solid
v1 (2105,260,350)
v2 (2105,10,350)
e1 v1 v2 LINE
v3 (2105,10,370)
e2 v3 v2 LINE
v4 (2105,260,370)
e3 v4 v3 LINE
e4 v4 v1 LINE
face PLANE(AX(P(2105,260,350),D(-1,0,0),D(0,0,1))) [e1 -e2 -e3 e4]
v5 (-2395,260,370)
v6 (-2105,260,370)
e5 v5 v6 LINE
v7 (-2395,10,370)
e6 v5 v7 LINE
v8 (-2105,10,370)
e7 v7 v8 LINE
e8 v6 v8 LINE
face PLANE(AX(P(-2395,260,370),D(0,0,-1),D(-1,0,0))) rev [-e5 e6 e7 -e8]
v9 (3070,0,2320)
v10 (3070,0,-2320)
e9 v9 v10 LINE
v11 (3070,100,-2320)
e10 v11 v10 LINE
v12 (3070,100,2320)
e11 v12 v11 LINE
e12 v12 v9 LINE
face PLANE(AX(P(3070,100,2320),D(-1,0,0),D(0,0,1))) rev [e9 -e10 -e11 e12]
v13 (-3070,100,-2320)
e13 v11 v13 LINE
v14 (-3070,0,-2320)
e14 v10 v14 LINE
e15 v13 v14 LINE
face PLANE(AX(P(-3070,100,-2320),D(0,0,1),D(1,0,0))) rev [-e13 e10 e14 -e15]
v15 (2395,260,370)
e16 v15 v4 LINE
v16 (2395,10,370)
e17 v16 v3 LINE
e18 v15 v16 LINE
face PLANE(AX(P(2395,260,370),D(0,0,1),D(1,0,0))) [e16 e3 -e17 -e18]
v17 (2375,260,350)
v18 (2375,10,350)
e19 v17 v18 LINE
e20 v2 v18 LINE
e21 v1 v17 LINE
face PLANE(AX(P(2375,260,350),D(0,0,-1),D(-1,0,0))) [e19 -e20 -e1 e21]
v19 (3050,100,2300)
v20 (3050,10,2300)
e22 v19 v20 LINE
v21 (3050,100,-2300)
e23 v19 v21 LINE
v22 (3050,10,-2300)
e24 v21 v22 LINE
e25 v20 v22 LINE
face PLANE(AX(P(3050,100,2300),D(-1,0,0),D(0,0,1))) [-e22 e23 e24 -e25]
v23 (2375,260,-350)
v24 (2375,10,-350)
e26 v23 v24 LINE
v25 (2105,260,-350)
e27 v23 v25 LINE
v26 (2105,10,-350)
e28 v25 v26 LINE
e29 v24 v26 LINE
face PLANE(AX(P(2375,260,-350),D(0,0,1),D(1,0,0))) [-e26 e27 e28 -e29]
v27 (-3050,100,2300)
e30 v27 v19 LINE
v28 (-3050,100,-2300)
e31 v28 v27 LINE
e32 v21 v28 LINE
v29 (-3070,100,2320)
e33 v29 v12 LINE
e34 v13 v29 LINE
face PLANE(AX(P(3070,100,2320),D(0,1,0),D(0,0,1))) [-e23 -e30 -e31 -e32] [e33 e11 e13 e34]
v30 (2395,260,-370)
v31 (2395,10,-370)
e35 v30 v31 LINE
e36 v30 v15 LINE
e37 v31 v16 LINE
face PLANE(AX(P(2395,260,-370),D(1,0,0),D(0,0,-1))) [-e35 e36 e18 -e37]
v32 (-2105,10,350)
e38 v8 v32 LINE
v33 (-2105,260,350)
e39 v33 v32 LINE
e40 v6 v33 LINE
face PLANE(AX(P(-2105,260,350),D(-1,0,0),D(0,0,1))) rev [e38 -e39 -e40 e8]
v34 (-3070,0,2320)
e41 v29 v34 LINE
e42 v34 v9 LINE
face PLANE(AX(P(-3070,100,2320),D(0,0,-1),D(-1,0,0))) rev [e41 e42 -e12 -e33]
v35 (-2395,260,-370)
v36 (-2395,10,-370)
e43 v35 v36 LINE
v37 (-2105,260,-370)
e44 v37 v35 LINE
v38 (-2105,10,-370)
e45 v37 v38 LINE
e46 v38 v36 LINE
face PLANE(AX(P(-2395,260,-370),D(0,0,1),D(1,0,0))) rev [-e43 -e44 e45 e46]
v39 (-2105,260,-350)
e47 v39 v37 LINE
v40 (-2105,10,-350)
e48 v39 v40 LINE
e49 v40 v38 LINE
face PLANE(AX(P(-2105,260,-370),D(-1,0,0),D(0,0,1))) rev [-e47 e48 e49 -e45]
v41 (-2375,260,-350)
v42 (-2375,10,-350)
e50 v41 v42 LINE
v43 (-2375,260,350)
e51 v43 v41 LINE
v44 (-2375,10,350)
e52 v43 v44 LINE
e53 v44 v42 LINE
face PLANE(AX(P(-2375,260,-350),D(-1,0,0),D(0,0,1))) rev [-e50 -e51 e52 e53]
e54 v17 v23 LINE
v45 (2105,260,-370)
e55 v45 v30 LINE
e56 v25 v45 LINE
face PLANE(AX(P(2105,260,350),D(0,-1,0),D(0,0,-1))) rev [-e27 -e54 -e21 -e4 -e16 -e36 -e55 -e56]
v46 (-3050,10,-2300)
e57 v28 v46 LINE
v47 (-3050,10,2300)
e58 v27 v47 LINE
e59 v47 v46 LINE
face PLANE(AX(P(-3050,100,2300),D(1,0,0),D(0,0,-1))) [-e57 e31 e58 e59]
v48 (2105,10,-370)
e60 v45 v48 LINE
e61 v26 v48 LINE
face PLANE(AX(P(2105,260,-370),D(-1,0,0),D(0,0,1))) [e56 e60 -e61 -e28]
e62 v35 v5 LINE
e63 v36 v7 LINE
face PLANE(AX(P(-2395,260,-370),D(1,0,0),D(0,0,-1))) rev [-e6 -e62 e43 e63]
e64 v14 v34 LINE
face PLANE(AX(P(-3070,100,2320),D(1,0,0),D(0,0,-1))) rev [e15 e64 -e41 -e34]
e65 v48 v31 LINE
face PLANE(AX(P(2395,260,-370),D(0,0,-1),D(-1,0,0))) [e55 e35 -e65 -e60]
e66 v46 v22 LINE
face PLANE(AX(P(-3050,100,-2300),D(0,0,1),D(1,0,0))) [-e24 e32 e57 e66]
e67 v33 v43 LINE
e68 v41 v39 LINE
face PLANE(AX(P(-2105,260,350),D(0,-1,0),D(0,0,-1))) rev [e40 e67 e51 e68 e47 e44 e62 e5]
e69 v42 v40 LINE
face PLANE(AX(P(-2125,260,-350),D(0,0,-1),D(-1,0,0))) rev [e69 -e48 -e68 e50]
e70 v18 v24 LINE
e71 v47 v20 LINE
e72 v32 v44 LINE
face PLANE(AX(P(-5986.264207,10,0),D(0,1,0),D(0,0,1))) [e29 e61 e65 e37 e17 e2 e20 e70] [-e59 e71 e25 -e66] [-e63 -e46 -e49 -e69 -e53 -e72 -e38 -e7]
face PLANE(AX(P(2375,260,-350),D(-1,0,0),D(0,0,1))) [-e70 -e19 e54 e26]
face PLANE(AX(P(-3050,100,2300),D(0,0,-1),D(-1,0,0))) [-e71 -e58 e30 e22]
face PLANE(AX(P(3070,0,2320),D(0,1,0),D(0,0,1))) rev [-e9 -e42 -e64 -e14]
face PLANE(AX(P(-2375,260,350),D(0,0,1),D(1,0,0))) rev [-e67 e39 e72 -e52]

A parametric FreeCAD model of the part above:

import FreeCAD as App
import Part
import Sketcher


def add_polygon(sketch, points):
    """Adds a closed chain of lines whose ends are joined by coincident constraints."""
    first, n = sketch.GeometryCount, len(points)
    for a, b in zip(points, points[1:] + points[:1]):
        sketch.addGeometry(Part.LineSegment(App.Vector(*a, 0), App.Vector(*b, 0)), False)
    for i in range(n):
        sketch.addConstraint(Sketcher.Constraint("Coincident", first + i, 2, first + (i + 1) % n, 1))

doc = App.newDocument("Part")
params = doc.addObject("Spreadsheet::Sheet", "Params")
for row, (alias, value) in enumerate([
    ("sketch1_width", "6140 mm"),
    ("sketch1_width2", "6100 mm"),
    ("sketch1_height", "4640 mm"),
    ("sketch1_height2", "4600 mm"),
    ("pad1_length", "100 mm"),
    ("sketch2_width", "6100 mm"),
    ("sketch2_height", "4600 mm"),
    ("pad2_length", "10 mm"),
    ("sketch3_width", "290 mm"),
    ("sketch3_width2", "270 mm"),
    ("sketch3_height", "740 mm"),
    ("sketch3_height2", "20 mm"),
    ("pad3_length", "250 mm"),
], start=1):
    params.set(f"A{row}", alias)
    params.set(f"B{row}", "=" + value)
    params.setAlias(f"B{row}", alias)

body = doc.addObject("PartDesign::Body", "Body")

# Sketch on XZ plane
sketch1 = body.newObject("Sketcher::SketchObject", "Sketch")
sketch1.AttachmentSupport = (doc.getObject("XZ_Plane"), [""])
sketch1.MapMode = "FlatFace"
add_polygon(sketch1, [(-3070, -2320), (-3070, 2320), (3070, 2320), (3070, -2320)])  # lines 0-3
add_polygon(sketch1, [(3050, 2300), (-3050, 2300), (-3050, -2300), (3050, -2300)])  # lines 4-7
sketch1.addConstraint([
    Sketcher.Constraint("Vertical", 0),
    Sketcher.Constraint("Horizontal", 1),
    Sketcher.Constraint("Vertical", 2),
    Sketcher.Constraint("Horizontal", 3),
    Sketcher.Constraint("Horizontal", 4),
    Sketcher.Constraint("Vertical", 5),
    Sketcher.Constraint("Horizontal", 6),
    Sketcher.Constraint("Vertical", 7),
    Sketcher.Constraint("Symmetric", 0, 2, 2, 2, -1, 1),
    Sketcher.Constraint("Symmetric", 4, 2, 6, 2, -1, 1),
    Sketcher.Constraint("DistanceX", 1, 1, 1, 2, 6140.0),
    Sketcher.Constraint("DistanceX", 4, 2, 4, 1, 6100.0),
    Sketcher.Constraint("DistanceY", 0, 1, 0, 2, 4640.0),
    Sketcher.Constraint("DistanceY", 5, 2, 5, 1, 4600.0),
])
sketch1.setExpression("Constraints[18]", "Params.sketch1_width")
sketch1.setExpression("Constraints[19]", "Params.sketch1_width2")
sketch1.setExpression("Constraints[20]", "Params.sketch1_height")
sketch1.setExpression("Constraints[21]", "Params.sketch1_height2")
pad1 = body.newObject("PartDesign::Pad", "Pad")
pad1.Profile = sketch1
pad1.setExpression("Length", "Params.pad1_length")
pad1.Reversed = True

# Sketch on XZ plane
sketch2 = body.newObject("Sketcher::SketchObject", "Sketch001")
sketch2.AttachmentSupport = (doc.getObject("XZ_Plane"), [""])
sketch2.MapMode = "FlatFace"
add_polygon(sketch2, [(-3050, -2300), (-3050, 2300), (3050, 2300), (3050, -2300)])  # lines 0-3
sketch2.addConstraint([
    Sketcher.Constraint("Vertical", 0),
    Sketcher.Constraint("Horizontal", 1),
    Sketcher.Constraint("Vertical", 2),
    Sketcher.Constraint("Horizontal", 3),
    Sketcher.Constraint("Symmetric", 0, 2, 2, 2, -1, 1),
    Sketcher.Constraint("DistanceX", 1, 1, 1, 2, 6100.0),
    Sketcher.Constraint("DistanceY", 0, 1, 0, 2, 4600.0),
])
sketch2.setExpression("Constraints[9]", "Params.sketch2_width")
sketch2.setExpression("Constraints[10]", "Params.sketch2_height")
pad2 = body.newObject("PartDesign::Pad", "Pad001")
pad2.Profile = sketch2
pad2.setExpression("Length", "Params.pad2_length")
pad2.Reversed = True

# Sketch on XZ plane
sketch3 = body.newObject("Sketcher::SketchObject", "Sketch002")
sketch3.AttachmentSupport = (doc.getObject("XZ_Plane"), [""])
sketch3.MapMode = "FlatFace"
sketch3.AttachmentOffset = App.Placement(App.Vector(0, 0, -10), App.Rotation())
add_polygon(sketch3, [(-2105, -370), (-2395, -370), (-2395, 370), (-2105, 370), (-2105, 350), (-2375, 350), (-2375, -350), (-2105, -350)])  # lines 0-7
sketch3.addConstraint([
    Sketcher.Constraint("Horizontal", 0),
    Sketcher.Constraint("Vertical", 1),
    Sketcher.Constraint("Horizontal", 2),
    Sketcher.Constraint("Vertical", 3),
    Sketcher.Constraint("Horizontal", 4),
    Sketcher.Constraint("Vertical", 5),
    Sketcher.Constraint("Horizontal", 6),
    Sketcher.Constraint("Vertical", 7),
    Sketcher.Constraint("Symmetric", 3, 2, 6, 2, -1),
    Sketcher.Constraint("Equal", 3, 7),
    Sketcher.Constraint("DistanceX", 0, 2, 0, 1, 290.0),
    Sketcher.Constraint("DistanceX", 4, 2, 4, 1, 270.0),
    Sketcher.Constraint("DistanceY", 1, 1, 1, 2, 740.0),
    Sketcher.Constraint("DistanceY", 3, 2, 3, 1, 20.0),
    Sketcher.Constraint("DistanceX", 0, 2, -1, 1, 2395.0),
])
sketch3.setExpression("Constraints[18]", "Params.sketch3_width")
sketch3.setExpression("Constraints[19]", "Params.sketch3_width2")
sketch3.setExpression("Constraints[20]", "Params.sketch3_height")
sketch3.setExpression("Constraints[21]", "Params.sketch3_height2")
pad3 = body.newObject("PartDesign::Pad", "Pad002")
pad3.Profile = sketch3
pad3.setExpression("Length", "Params.pad3_length")
pad3.Reversed = True
doc.recompute()

mirrored = body.newObject("PartDesign::Mirrored", "Mirrored")
mirrored.Originals = [pad3]
mirrored.MirrorPlane = (doc.getObject("YZ_Plane"), [""])
body.Tip = mirrored

doc.recompute()
